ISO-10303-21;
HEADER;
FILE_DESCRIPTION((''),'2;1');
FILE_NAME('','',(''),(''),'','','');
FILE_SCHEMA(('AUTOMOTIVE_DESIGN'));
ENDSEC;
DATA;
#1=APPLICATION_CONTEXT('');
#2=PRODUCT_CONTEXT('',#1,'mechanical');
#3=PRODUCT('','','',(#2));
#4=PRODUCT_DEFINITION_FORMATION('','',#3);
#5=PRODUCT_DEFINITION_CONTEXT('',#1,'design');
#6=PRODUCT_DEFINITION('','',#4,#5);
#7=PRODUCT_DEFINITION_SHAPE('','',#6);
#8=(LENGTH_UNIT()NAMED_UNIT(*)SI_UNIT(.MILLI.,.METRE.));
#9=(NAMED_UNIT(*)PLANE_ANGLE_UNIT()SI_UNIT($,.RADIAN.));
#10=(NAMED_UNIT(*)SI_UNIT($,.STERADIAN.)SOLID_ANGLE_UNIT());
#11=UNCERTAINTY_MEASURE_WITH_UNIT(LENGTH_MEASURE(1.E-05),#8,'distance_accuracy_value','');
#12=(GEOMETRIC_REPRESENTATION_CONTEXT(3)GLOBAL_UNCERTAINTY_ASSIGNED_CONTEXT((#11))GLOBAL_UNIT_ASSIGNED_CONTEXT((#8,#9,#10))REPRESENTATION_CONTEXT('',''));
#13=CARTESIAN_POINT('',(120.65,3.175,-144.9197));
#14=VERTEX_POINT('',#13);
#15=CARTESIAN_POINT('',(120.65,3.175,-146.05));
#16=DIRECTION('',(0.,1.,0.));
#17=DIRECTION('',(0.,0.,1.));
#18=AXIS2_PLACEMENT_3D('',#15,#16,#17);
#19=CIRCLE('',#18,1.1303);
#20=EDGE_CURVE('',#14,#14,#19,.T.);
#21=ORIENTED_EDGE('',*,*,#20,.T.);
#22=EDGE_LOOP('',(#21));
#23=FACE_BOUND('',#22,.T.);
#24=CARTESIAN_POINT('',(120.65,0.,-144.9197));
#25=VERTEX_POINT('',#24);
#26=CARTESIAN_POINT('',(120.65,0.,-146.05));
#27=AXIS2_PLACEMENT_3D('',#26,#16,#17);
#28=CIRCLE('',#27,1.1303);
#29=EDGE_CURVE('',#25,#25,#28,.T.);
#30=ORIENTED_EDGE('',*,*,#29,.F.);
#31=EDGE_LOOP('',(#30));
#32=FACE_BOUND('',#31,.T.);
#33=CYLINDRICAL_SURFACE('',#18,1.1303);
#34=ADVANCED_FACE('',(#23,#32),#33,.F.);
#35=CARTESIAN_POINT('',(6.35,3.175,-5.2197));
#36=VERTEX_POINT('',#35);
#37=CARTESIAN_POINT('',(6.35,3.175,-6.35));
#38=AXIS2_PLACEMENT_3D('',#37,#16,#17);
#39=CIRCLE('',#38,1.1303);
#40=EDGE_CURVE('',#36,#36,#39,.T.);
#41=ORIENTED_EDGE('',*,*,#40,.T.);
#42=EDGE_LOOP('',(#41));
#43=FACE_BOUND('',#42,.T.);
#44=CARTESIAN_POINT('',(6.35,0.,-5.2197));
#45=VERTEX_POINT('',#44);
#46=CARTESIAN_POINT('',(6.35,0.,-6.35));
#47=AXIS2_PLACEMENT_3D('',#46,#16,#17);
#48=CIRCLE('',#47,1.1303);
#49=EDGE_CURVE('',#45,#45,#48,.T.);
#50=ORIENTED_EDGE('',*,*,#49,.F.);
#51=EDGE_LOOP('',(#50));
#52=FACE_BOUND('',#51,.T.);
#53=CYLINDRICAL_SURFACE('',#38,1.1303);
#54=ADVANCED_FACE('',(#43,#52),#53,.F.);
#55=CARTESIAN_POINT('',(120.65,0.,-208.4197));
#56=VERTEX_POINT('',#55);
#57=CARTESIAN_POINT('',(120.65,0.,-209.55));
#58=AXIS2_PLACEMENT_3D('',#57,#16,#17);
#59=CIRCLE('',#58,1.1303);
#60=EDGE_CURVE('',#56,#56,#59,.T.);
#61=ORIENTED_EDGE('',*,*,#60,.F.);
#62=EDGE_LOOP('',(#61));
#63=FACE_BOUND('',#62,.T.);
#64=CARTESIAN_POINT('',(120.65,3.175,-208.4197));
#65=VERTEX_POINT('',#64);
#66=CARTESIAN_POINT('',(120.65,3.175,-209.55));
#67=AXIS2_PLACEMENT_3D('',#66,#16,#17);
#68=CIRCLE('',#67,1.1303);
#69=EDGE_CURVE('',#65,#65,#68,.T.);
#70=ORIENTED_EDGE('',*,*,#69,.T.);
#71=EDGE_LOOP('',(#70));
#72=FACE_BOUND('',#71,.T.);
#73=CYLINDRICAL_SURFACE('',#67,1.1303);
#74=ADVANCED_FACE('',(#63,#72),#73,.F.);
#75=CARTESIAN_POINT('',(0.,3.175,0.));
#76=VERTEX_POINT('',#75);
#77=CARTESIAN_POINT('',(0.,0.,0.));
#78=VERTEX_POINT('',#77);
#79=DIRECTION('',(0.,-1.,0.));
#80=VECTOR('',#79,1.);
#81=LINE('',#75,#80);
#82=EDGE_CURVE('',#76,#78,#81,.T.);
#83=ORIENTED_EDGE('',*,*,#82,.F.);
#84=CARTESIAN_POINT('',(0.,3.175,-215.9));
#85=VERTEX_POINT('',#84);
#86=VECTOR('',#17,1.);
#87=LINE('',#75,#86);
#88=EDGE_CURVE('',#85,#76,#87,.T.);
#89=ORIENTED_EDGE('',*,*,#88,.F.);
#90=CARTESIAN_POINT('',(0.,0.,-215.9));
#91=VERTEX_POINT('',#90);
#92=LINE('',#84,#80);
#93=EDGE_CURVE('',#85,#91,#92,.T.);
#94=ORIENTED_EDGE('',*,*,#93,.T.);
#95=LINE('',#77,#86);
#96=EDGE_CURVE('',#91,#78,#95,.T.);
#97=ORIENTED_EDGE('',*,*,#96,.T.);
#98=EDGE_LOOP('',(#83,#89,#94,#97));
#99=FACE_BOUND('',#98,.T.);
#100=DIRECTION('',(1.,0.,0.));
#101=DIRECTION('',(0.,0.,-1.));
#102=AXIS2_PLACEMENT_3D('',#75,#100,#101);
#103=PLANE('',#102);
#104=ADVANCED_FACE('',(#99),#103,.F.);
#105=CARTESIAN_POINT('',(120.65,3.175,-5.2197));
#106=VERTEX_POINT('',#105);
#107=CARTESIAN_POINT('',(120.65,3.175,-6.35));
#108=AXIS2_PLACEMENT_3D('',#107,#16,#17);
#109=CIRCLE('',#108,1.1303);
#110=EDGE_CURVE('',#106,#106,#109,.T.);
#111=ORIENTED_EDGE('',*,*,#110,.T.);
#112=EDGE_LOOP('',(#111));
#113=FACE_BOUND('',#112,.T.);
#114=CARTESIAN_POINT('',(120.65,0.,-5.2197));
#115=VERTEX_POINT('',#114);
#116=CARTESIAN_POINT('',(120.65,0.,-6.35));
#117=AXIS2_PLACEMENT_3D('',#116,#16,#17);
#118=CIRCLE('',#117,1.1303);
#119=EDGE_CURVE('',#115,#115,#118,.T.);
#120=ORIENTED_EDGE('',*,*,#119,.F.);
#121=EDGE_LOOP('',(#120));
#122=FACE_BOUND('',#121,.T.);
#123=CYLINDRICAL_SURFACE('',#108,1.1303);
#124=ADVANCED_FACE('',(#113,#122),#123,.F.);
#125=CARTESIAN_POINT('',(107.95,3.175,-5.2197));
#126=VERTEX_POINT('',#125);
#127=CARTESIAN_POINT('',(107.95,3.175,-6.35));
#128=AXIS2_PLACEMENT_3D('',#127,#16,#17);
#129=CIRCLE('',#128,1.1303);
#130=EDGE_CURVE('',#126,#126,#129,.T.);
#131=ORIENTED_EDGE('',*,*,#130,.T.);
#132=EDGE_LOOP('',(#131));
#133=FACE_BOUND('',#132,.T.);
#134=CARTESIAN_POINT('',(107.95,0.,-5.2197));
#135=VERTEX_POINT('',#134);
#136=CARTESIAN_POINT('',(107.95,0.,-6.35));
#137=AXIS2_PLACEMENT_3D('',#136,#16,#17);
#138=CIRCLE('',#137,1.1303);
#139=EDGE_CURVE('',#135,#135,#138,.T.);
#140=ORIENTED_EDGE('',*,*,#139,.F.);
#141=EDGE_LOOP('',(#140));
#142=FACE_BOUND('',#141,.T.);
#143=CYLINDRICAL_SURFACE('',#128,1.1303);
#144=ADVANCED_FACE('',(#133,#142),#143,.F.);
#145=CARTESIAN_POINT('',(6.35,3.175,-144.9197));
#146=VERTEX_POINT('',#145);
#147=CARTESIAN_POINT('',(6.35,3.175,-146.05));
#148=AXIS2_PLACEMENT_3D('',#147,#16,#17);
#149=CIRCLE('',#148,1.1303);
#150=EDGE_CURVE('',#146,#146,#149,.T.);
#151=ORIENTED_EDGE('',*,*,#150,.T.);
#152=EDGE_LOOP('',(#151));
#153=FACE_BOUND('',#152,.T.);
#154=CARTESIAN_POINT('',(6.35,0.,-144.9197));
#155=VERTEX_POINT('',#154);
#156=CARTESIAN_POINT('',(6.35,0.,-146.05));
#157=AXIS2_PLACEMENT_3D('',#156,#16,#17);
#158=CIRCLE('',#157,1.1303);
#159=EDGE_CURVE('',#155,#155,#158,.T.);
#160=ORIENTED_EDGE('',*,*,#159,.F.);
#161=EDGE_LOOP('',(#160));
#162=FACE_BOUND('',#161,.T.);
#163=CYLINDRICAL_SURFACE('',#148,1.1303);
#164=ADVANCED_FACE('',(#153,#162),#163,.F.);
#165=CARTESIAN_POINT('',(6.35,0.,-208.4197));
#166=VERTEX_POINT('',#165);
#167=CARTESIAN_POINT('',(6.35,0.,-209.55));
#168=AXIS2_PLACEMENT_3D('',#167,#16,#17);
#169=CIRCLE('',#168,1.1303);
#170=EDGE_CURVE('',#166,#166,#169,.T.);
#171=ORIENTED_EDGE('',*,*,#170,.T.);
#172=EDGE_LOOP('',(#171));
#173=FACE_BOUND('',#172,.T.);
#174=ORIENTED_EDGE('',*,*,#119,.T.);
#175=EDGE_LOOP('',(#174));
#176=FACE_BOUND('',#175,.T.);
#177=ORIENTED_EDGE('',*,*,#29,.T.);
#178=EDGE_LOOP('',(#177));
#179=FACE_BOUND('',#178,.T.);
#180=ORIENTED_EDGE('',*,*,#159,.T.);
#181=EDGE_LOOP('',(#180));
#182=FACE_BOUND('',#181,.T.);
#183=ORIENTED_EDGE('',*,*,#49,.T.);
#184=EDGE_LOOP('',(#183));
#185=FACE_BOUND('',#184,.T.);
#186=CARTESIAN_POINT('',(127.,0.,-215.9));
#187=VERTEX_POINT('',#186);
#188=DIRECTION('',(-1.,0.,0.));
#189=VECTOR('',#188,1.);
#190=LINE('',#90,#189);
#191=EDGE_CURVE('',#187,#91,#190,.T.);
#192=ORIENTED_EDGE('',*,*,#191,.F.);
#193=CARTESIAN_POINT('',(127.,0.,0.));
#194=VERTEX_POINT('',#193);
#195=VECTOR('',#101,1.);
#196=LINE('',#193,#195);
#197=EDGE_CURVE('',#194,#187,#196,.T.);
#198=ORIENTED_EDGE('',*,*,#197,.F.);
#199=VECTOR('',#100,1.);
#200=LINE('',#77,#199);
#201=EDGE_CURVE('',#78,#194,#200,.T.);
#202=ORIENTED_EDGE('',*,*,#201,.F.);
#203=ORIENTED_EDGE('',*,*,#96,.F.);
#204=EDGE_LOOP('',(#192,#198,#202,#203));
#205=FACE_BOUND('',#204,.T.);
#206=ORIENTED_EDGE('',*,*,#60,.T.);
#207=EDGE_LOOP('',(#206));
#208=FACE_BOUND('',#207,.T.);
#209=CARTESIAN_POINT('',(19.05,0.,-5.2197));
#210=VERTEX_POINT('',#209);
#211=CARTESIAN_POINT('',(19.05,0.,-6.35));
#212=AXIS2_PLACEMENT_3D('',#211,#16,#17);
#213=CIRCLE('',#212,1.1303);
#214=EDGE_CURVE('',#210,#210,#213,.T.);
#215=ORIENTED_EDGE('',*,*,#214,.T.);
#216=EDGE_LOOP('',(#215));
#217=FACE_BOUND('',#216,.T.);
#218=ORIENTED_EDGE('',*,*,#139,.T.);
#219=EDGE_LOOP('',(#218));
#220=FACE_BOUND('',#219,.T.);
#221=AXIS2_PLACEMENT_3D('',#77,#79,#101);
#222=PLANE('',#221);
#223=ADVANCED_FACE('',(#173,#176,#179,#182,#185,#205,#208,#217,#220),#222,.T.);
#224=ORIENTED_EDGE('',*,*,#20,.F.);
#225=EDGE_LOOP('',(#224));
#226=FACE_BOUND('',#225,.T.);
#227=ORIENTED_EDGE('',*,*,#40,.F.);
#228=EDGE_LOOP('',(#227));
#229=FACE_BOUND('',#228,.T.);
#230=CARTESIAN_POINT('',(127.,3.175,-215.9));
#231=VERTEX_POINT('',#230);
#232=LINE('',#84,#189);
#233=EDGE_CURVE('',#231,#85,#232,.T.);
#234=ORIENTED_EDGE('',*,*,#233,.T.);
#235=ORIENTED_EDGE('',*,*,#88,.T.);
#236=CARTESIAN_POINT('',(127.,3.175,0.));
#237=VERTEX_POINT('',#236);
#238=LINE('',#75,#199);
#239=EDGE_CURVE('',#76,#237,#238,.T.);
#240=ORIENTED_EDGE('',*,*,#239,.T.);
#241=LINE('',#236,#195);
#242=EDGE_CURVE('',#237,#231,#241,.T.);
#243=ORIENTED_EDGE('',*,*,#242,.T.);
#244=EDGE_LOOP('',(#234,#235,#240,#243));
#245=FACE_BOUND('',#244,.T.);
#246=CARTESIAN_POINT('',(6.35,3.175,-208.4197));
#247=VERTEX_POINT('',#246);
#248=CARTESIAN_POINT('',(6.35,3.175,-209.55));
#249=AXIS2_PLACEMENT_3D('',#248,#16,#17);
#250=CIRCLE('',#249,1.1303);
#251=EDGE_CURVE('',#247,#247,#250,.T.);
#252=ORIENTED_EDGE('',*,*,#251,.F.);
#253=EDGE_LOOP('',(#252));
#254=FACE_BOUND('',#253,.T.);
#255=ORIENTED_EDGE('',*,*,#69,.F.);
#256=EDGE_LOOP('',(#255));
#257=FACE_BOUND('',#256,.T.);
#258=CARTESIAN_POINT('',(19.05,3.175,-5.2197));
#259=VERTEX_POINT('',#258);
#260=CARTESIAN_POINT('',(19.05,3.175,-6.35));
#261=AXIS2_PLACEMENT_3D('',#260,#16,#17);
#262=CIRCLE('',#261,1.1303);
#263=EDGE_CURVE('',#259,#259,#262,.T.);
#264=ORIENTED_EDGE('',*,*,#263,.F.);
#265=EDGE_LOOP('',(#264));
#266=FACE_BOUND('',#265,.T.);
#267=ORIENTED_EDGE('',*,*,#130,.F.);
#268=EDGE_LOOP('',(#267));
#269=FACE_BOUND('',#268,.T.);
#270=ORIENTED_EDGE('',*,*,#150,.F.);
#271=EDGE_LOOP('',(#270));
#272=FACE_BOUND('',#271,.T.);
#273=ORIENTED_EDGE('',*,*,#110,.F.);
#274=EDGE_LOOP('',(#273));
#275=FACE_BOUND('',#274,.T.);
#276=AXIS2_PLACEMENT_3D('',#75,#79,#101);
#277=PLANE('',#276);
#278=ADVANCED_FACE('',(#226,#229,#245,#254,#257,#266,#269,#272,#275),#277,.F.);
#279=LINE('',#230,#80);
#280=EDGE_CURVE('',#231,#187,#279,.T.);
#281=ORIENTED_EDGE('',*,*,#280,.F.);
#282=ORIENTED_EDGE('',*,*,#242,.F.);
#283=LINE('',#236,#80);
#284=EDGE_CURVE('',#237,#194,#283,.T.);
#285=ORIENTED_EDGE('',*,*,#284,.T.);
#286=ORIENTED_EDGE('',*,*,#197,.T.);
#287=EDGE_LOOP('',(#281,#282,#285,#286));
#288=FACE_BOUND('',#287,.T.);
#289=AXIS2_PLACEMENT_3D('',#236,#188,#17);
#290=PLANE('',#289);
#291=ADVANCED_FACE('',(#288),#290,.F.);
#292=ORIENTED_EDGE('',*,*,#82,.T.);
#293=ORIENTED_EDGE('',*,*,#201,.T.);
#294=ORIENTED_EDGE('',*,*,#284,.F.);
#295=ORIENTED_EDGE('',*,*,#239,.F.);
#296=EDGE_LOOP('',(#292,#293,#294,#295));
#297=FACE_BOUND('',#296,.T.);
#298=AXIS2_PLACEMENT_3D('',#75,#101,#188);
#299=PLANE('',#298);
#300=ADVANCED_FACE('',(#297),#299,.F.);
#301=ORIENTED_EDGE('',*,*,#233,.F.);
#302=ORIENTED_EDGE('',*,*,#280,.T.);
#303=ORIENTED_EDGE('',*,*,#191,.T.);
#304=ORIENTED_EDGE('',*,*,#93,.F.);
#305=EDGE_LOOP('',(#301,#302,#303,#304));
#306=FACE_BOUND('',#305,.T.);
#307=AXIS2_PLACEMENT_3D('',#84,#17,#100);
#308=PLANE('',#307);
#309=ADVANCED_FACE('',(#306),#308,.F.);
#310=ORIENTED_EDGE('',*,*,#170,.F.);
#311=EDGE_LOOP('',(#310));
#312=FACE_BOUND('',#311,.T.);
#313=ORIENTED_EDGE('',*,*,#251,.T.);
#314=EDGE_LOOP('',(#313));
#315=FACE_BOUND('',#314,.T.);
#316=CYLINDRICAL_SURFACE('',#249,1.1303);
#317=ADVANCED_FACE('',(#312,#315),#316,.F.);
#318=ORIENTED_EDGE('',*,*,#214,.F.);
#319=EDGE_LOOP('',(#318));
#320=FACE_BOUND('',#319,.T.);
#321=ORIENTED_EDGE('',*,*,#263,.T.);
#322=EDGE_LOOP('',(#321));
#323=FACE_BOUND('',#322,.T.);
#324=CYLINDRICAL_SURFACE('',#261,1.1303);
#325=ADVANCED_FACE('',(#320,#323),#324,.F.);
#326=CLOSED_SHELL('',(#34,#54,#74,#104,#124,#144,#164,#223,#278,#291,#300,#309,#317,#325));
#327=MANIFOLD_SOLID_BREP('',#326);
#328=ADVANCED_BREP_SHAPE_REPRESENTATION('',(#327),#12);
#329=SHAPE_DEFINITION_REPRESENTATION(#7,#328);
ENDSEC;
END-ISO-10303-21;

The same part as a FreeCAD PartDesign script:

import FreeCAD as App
import Part
import Sketcher

V = App.Vector
Q = App.Units.Quantity

doc = App.newDocument("Part")
body = doc.addObject("PartDesign::Body", "Body")

# Sketch on XZ plane
sketch1 = body.newObject("Sketcher::SketchObject", "Sketch")
sketch1.AttachmentSupport = (doc.getObject("XZ_Plane"), [""])
sketch1.MapMode = "FlatFace"
sketch1.addGeometry([
    Part.LineSegment(V(0, -216, 0), V(0, 0, 0)),
    Part.LineSegment(V(0, 0, 0), V(127, 0, 0)),
    Part.LineSegment(V(127, 0, 0), V(127, -216, 0)),
    Part.LineSegment(V(127, -216, 0), V(0, -216, 0)),
], False)
sketch1.addConstraint([
    Sketcher.Constraint("Coincident", 0, 2, 1, 1),
    Sketcher.Constraint("Coincident", 1, 2, 2, 1),
    Sketcher.Constraint("Coincident", 2, 2, 3, 1),
    Sketcher.Constraint("Coincident", 3, 2, 0, 1),
    Sketcher.Constraint("Vertical", 0),
    Sketcher.Constraint("Horizontal", 1),
    Sketcher.Constraint("Vertical", 2),
    Sketcher.Constraint("Horizontal", 3),
    Sketcher.Constraint("Coincident", 0, 2, -1, 1),
    Sketcher.Constraint("DistanceX", 1, 1, 1, 2, Q("5 in")),
    Sketcher.Constraint("DistanceY", 0, 1, 0, 2, Q("8.5 in")),
])
pad1 = body.newObject("PartDesign::Pad", "Pad")
pad1.Profile = sketch1
pad1.Length = Q("0.125 in")
pad1.Reversed = True

# Sketch on XZ plane
sketch2 = body.newObject("Sketcher::SketchObject", "Sketch001")
sketch2.AttachmentSupport = (doc.getObject("XZ_Plane"), [""])
sketch2.MapMode = "FlatFace"
sketch2.AttachmentOffset = App.Placement(V(0, 0, -0.125 * 25.4), App.Rotation())
sketch2.addGeometry([
    Part.Circle(V(6.3, -209.6, 0), V(0, 0, 1), 1.1),  # 0
    Part.Circle(V(120.7, -209.6, 0), V(0, 0, 1), 1.1),  # 1
    Part.Circle(V(120.7, -146.1, 0), V(0, 0, 1), 1.1),  # 2
    Part.Circle(V(6.3, -146.1, 0), V(0, 0, 1), 1.1),  # 3
    Part.Circle(V(120.7, -6.3, 0), V(0, 0, 1), 1.1),  # 4
    Part.Circle(V(6.3, -6.3, 0), V(0, 0, 1), 1.1),  # 5
    Part.Circle(V(19.1, -6.3, 0), V(0, 0, 1), 1.1),  # 6
    Part.Circle(V(108, -6.3, 0), V(0, 0, 1), 1.1),  # 7
], False)
sketch2.addConstraint([
    Sketcher.Constraint("Equal", 0, 1),
    Sketcher.Constraint("Equal", 1, 2),
    Sketcher.Constraint("Equal", 2, 3),
    Sketcher.Constraint("Equal", 3, 4),
    Sketcher.Constraint("Equal", 4, 5),
    Sketcher.Constraint("Equal", 5, 6),
    Sketcher.Constraint("Equal", 6, 7),
    Sketcher.Constraint("Horizontal", 0, 3, 1, 3),
    Sketcher.Constraint("Horizontal", 2, 3, 3, 3),
    Sketcher.Constraint("Horizontal", 4, 3, 5, 3),
    Sketcher.Constraint("Horizontal", 5, 3, 6, 3),
    Sketcher.Constraint("Horizontal", 6, 3, 7, 3),
    Sketcher.Constraint("Vertical", 1, 3, 2, 3),
    Sketcher.Constraint("Vertical", 0, 3, 3, 3),
    Sketcher.Constraint("Vertical", 2, 3, 4, 3),
    Sketcher.Constraint("Vertical", 3, 3, 5, 3),
    Sketcher.Constraint("Diameter", 0, Q("0.089 in")),
    Sketcher.Constraint("DistanceY", 1, 3, 4, 3, Q("8 in")),
    Sketcher.Constraint("DistanceX", 6, 3, 4, 3, Q("4 in")),
    Sketcher.Constraint("DistanceX", 5, 3, 7, 3, Q("4 in")),
    Sketcher.Constraint("DistanceX", 0, 3, 1, 3, Q("4.5 in")),
    Sketcher.Constraint("DistanceY", 1, 3, 2, 3, Q("2.5 in")),
    Sketcher.Constraint("DistanceX", -1, 1, 0, 3, Q("0.25 in")),
    Sketcher.Constraint("DistanceY", 0, 3, -1, 1, Q("8.25 in")),
])
doc.recompute()
hole = body.newObject("PartDesign::Hole", "Hole")
hole.Profile = sketch2
hole.ThreadType = "None"
hole.Diameter = Q("0.089 in")
hole.DepthType = "ThroughAll"
hole.Reversed = True

doc.recompute()
